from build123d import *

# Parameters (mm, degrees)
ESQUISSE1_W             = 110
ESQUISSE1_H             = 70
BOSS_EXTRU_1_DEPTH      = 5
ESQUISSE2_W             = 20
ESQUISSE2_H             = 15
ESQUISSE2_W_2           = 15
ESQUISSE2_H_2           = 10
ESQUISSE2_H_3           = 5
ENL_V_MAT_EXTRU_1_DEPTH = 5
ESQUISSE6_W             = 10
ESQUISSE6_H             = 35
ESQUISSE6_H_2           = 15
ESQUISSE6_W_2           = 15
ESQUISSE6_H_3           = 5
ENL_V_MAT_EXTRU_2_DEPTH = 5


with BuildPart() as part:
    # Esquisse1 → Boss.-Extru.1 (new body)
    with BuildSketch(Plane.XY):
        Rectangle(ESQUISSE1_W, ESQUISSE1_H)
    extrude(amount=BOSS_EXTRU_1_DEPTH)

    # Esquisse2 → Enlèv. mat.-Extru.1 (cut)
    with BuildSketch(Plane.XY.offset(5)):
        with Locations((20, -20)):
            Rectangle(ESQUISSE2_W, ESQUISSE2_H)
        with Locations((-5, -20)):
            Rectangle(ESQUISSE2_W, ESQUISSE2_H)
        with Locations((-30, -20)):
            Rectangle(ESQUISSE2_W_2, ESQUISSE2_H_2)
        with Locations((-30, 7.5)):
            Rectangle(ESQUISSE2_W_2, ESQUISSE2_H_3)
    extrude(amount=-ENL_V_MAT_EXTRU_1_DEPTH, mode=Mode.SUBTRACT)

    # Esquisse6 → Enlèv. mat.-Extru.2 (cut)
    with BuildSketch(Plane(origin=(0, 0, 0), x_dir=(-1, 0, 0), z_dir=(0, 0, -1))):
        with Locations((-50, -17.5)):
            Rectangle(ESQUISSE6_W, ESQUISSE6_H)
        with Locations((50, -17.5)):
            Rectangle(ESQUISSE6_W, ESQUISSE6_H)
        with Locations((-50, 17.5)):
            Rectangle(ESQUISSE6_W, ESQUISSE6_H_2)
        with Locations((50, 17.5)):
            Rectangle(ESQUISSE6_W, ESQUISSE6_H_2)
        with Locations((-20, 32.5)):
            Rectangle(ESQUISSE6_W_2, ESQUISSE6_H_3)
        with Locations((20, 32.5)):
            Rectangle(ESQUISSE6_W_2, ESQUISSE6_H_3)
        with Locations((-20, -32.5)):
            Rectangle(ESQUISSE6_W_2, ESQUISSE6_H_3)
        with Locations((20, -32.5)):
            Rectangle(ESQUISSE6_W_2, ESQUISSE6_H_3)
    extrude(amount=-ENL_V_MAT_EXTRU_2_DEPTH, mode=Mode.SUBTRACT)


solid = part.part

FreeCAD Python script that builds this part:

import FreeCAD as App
import Part
import Sketcher

V = App.Vector

doc = App.newDocument("Part")
params = doc.addObject("Spreadsheet::Sheet", "Params")
for row, (alias, value) in enumerate([
    ("sketch1_width", "110 mm"),
    ("sketch1_height", "70 mm"),
    ("pad1_length", "5 mm"),
    ("sketch2_width", "20 mm"),
    ("sketch2_width2", "15 mm"),
    ("sketch2_height", "10 mm"),
    ("sketch2_height2", "5 mm"),
    ("pocket1_length", "5 mm"),
    ("sketch3_width", "10 mm"),
    ("sketch3_width2", "15 mm"),
    ("sketch3_height", "35 mm"),
    ("sketch3_height2", "5 mm"),
    ("pocket2_length", "5 mm"),
], start=1):
    params.set(f"A{row}", alias)
    params.set(f"B{row}", "=" + value)
    params.setAlias(f"B{row}", alias)

body = doc.addObject("PartDesign::Body", "Body")

sketch1 = body.newObject("Sketcher::SketchObject", "Sketch")
sketch1.AttachmentSupport = (doc.getObject("XY_Plane"), [""])
sketch1.MapMode = "FlatFace"
sketch1.addGeometry(Part.LineSegment(V(-55, 35, 0), V(-55, -35, 0)), False)
sketch1.addGeometry(Part.LineSegment(V(-55, -35, 0), V(55, -35, 0)), False)
sketch1.addGeometry(Part.LineSegment(V(55, -35, 0), V(55, 35, 0)), False)
sketch1.addGeometry(Part.LineSegment(V(55, 35, 0), V(-55, 35, 0)), False)
sketch1.addConstraint(Sketcher.Constraint("Coincident", 0, 2, 1, 1))
sketch1.addConstraint(Sketcher.Constraint("Coincident", 1, 2, 2, 1))
sketch1.addConstraint(Sketcher.Constraint("Coincident", 2, 2, 3, 1))
sketch1.addConstraint(Sketcher.Constraint("Coincident", 3, 2, 0, 1))
sketch1.addConstraint(Sketcher.Constraint("Vertical", 0))
sketch1.addConstraint(Sketcher.Constraint("Horizontal", 1))
sketch1.addConstraint(Sketcher.Constraint("Vertical", 2))
sketch1.addConstraint(Sketcher.Constraint("Horizontal", 3))
sketch1.addConstraint(Sketcher.Constraint("Symmetric", 0, 2, 2, 2, -1, 1))
sketch1.addConstraint(Sketcher.Constraint("DistanceX", 1, 1, 1, 2, 110.0))
sketch1.addConstraint(Sketcher.Constraint("DistanceY", 0, 2, 0, 1, 70.0))
sketch1.setExpression("Constraints[9]", "Params.sketch1_width")
sketch1.setExpression("Constraints[10]", "Params.sketch1_height")
pad1 = body.newObject("PartDesign::Pad", "Pad")
pad1.Profile = sketch1
pad1.setExpression("Length", "Params.pad1_length")

sketch2 = body.newObject("Sketcher::SketchObject", "Sketch001")
sketch2.AttachmentSupport = (doc.getObject("XY_Plane"), [""])
sketch2.MapMode = "FlatFace"
sketch2.AttachmentOffset = App.Placement(V(0, 0, 5), App.Rotation())
sketch2.addGeometry(Part.LineSegment(V(10, -12.5, 0), V(10, -27.5, 0)), False)
sketch2.addGeometry(Part.LineSegment(V(10, -27.5, 0), V(30, -27.5, 0)), False)
sketch2.addGeometry(Part.LineSegment(V(30, -27.5, 0), V(30, -12.5, 0)), False)
sketch2.addGeometry(Part.LineSegment(V(30, -12.5, 0), V(10, -12.5, 0)), False)
sketch2.addGeometry(Part.LineSegment(V(-15, -12.5, 0), V(-15, -27.5, 0)), False)
sketch2.addGeometry(Part.LineSegment(V(-15, -27.5, 0), V(5, -27.5, 0)), False)
sketch2.addGeometry(Part.LineSegment(V(5, -27.5, 0), V(5, -12.5, 0)), False)
sketch2.addGeometry(Part.LineSegment(V(5, -12.5, 0), V(-15, -12.5, 0)), False)
sketch2.addGeometry(Part.LineSegment(V(-37.5, -15, 0), V(-37.5, -25, 0)), False)
sketch2.addGeometry(Part.LineSegment(V(-37.5, -25, 0), V(-22.5, -25, 0)), False)
sketch2.addGeometry(Part.LineSegment(V(-22.5, -25, 0), V(-22.5, -15, 0)), False)
sketch2.addGeometry(Part.LineSegment(V(-22.5, -15, 0), V(-37.5, -15, 0)), False)
sketch2.addGeometry(Part.LineSegment(V(-37.5, 10, 0), V(-37.5, 5, 0)), False)
sketch2.addGeometry(Part.LineSegment(V(-37.5, 5, 0), V(-22.5, 5, 0)), False)
sketch2.addGeometry(Part.LineSegment(V(-22.5, 5, 0), V(-22.5, 10, 0)), False)
sketch2.addGeometry(Part.LineSegment(V(-22.5, 10, 0), V(-37.5, 10, 0)), False)
sketch2.addConstraint(Sketcher.Constraint("Coincident", 0, 2, 1, 1))
sketch2.addConstraint(Sketcher.Constraint("Coincident", 1, 2, 2, 1))
sketch2.addConstraint(Sketcher.Constraint("Coincident", 2, 2, 3, 1))
sketch2.addConstraint(Sketcher.Constraint("Coincident", 3, 2, 0, 1))
sketch2.addConstraint(Sketcher.Constraint("Coincident", 4, 2, 5, 1))
sketch2.addConstraint(Sketcher.Constraint("Coincident", 5, 2, 6, 1))
sketch2.addConstraint(Sketcher.Constraint("Coincident", 6, 2, 7, 1))
sketch2.addConstraint(Sketcher.Constraint("Coincident", 7, 2, 4, 1))
sketch2.addConstraint(Sketcher.Constraint("Coincident", 8, 2, 9, 1))
sketch2.addConstraint(Sketcher.Constraint("Coincident", 9, 2, 10, 1))
sketch2.addConstraint(Sketcher.Constraint("Coincident", 10, 2, 11, 1))
sketch2.addConstraint(Sketcher.Constraint("Coincident", 11, 2, 8, 1))
sketch2.addConstraint(Sketcher.Constraint("Coincident", 12, 2, 13, 1))
sketch2.addConstraint(Sketcher.Constraint("Coincident", 13, 2, 14, 1))
sketch2.addConstraint(Sketcher.Constraint("Coincident", 14, 2, 15, 1))
sketch2.addConstraint(Sketcher.Constraint("Coincident", 15, 2, 12, 1))
sketch2.addConstraint(Sketcher.Constraint("Vertical", 0))
sketch2.addConstraint(Sketcher.Constraint("Horizontal", 1))
sketch2.addConstraint(Sketcher.Constraint("Vertical", 2))
sketch2.addConstraint(Sketcher.Constraint("Horizontal", 3))
sketch2.addConstraint(Sketcher.Constraint("Vertical", 4))
sketch2.addConstraint(Sketcher.Constraint("Horizontal", 5))
sketch2.addConstraint(Sketcher.Constraint("Vertical", 6))
sketch2.addConstraint(Sketcher.Constraint("Horizontal", 7))
sketch2.addConstraint(Sketcher.Constraint("Vertical", 8))
sketch2.addConstraint(Sketcher.Constraint("Horizontal", 9))
sketch2.addConstraint(Sketcher.Constraint("Vertical", 10))
sketch2.addConstraint(Sketcher.Constraint("Horizontal", 11))
sketch2.addConstraint(Sketcher.Constraint("Vertical", 12))
sketch2.addConstraint(Sketcher.Constraint("Horizontal", 13))
sketch2.addConstraint(Sketcher.Constraint("Vertical", 14))
sketch2.addConstraint(Sketcher.Constraint("Horizontal", 15))
sketch2.addConstraint(Sketcher.Constraint("Horizontal", 1, 2, 4, 2))
sketch2.addConstraint(Sketcher.Constraint("Horizontal", 3, 2, 6, 2))
sketch2.addConstraint(Sketcher.Constraint("Vertical", 11, 2, 12, 2))
sketch2.addConstraint(Sketcher.Constraint("Vertical", 10, 2, 13, 2))
sketch2.addConstraint(Sketcher.Constraint("Equal", 3, 5))
sketch2.addConstraint(Sketcher.Constraint("Equal", 15, 0))
sketch2.addConstraint(Sketcher.Constraint("DistanceX", 1, 1, 1, 2, 20.0))
sketch2.addConstraint(Sketcher.Constraint("DistanceX", 9, 1, 9, 2, 15.0))
sketch2.addConstraint(Sketcher.Constraint("DistanceY", 8, 2, 8, 1, 10.0))
sketch2.addConstraint(Sketcher.Constraint("DistanceY", 12, 2, 12, 1, 5.0))
sketch2.addConstraint(Sketcher.Constraint("DistanceX", -1, 1, 0, 2, 10.0))
sketch2.addConstraint(Sketcher.Constraint("DistanceX", 4, 2, -1, 1, 15.0))
sketch2.addConstraint(Sketcher.Constraint("DistanceY", 8, 2, -1, 1, 25.0))
sketch2.addConstraint(Sketcher.Constraint("DistanceY", -1, 1, 12, 2, 5.0))
sketch2.addConstraint(Sketcher.Constraint("DistanceY", 0, 2, -1, 1, 27.5))
sketch2.addConstraint(Sketcher.Constraint("DistanceX", 8, 2, -1, 1, 37.5))
sketch2.setExpression("Constraints[38]", "Params.sketch2_width")
sketch2.setExpression("Constraints[39]", "Params.sketch2_width2")
sketch2.setExpression("Constraints[40]", "Params.sketch2_height")
sketch2.setExpression("Constraints[41]", "Params.sketch2_height2")
pocket1 = body.newObject("PartDesign::Pocket", "Pocket")
pocket1.Profile = sketch2
pocket1.setExpression("Length", "Params.pocket1_length")

sketch3 = body.newObject("Sketcher::SketchObject", "Sketch002")
sketch3.AttachmentSupport = (doc.getObject("XY_Plane"), [""])
sketch3.MapMode = "FlatFace"
sketch3.addGeometry(Part.LineSegment(V(55, 0, 0), V(55, -35, 0)), False)
sketch3.addGeometry(Part.LineSegment(V(55, -35, 0), V(45, -35, 0)), False)
sketch3.addGeometry(Part.LineSegment(V(45, -35, 0), V(45, 0, 0)), False)
sketch3.addGeometry(Part.LineSegment(V(45, 0, 0), V(55, 0, 0)), False)
sketch3.addGeometry(Part.LineSegment(V(-45, 0, 0), V(-45, -35, 0)), False)
sketch3.addGeometry(Part.LineSegment(V(-45, -35, 0), V(-55, -35, 0)), False)
sketch3.addGeometry(Part.LineSegment(V(-55, -35, 0), V(-55, 0, 0)), False)
sketch3.addGeometry(Part.LineSegment(V(-55, 0, 0), V(-45, 0, 0)), False)
sketch3.addGeometry(Part.LineSegment(V(55, 25, 0), V(55, 10, 0)), False)
sketch3.addGeometry(Part.LineSegment(V(55, 10, 0), V(45, 10, 0)), False)
sketch3.addGeometry(Part.LineSegment(V(45, 10, 0), V(45, 25, 0)), False)
sketch3.addGeometry(Part.LineSegment(V(45, 25, 0), V(55, 25, 0)), False)
sketch3.addGeometry(Part.LineSegment(V(-45, 25, 0), V(-45, 10, 0)), False)
sketch3.addGeometry(Part.LineSegment(V(-45, 10, 0), V(-55, 10, 0)), False)
sketch3.addGeometry(Part.LineSegment(V(-55, 10, 0), V(-55, 25, 0)), False)
sketch3.addGeometry(Part.LineSegment(V(-55, 25, 0), V(-45, 25, 0)), False)
sketch3.addGeometry(Part.LineSegment(V(27.5, 35, 0), V(27.5, 30, 0)), False)
sketch3.addGeometry(Part.LineSegment(V(27.5, 30, 0), V(12.5, 30, 0)), False)
sketch3.addGeometry(Part.LineSegment(V(12.5, 30, 0), V(12.5, 35, 0)), False)
sketch3.addGeometry(Part.LineSegment(V(12.5, 35, 0), V(27.5, 35, 0)), False)
sketch3.addGeometry(Part.LineSegment(V(-12.5, 35, 0), V(-12.5, 30, 0)), False)
sketch3.addGeometry(Part.LineSegment(V(-12.5, 30, 0), V(-27.5, 30, 0)), False)
sketch3.addGeometry(Part.LineSegment(V(-27.5, 30, 0), V(-27.5, 35, 0)), False)
sketch3.addGeometry(Part.LineSegment(V(-27.5, 35, 0), V(-12.5, 35, 0)), False)
sketch3.addGeometry(Part.LineSegment(V(27.5, -30, 0), V(27.5, -35, 0)), False)
sketch3.addGeometry(Part.LineSegment(V(27.5, -35, 0), V(12.5, -35, 0)), False)
sketch3.addGeometry(Part.LineSegment(V(12.5, -35, 0), V(12.5, -30, 0)), False)
sketch3.addGeometry(Part.LineSegment(V(12.5, -30, 0), V(27.5, -30, 0)), False)
sketch3.addGeometry(Part.LineSegment(V(-12.5, -30, 0), V(-12.5, -35, 0)), False)
sketch3.addGeometry(Part.LineSegment(V(-12.5, -35, 0), V(-27.5, -35, 0)), False)
sketch3.addGeometry(Part.LineSegment(V(-27.5, -35, 0), V(-27.5, -30, 0)), False)
sketch3.addGeometry(Part.LineSegment(V(-27.5, -30, 0), V(-12.5, -30, 0)), False)
sketch3.addConstraint(Sketcher.Constraint("Coincident", 0, 2, 1, 1))
sketch3.addConstraint(Sketcher.Constraint("Coincident", 1, 2, 2, 1))
sketch3.addConstraint(Sketcher.Constraint("Coincident", 2, 2, 3, 1))
sketch3.addConstraint(Sketcher.Constraint("Coincident", 3, 2, 0, 1))
sketch3.addConstraint(Sketcher.Constraint("Coincident", 4, 2, 5, 1))
sketch3.addConstraint(Sketcher.Constraint("Coincident", 5, 2, 6, 1))
sketch3.addConstraint(Sketcher.Constraint("Coincident", 6, 2, 7, 1))
sketch3.addConstraint(Sketcher.Constraint("Coincident", 7, 2, 4, 1))
sketch3.addConstraint(Sketcher.Constraint("Coincident", 8, 2, 9, 1))
sketch3.addConstraint(Sketcher.Constraint("Coincident", 9, 2, 10, 1))
sketch3.addConstraint(Sketcher.Constraint("Coincident", 10, 2, 11, 1))
sketch3.addConstraint(Sketcher.Constraint("Coincident", 11, 2, 8, 1))
sketch3.addConstraint(Sketcher.Constraint("Coincident", 12, 2, 13, 1))
sketch3.addConstraint(Sketcher.Constraint("Coincident", 13, 2, 14, 1))
sketch3.addConstraint(Sketcher.Constraint("Coincident", 14, 2, 15, 1))
sketch3.addConstraint(Sketcher.Constraint("Coincident", 15, 2, 12, 1))
sketch3.addConstraint(Sketcher.Constraint("Coincident", 16, 2, 17, 1))
sketch3.addConstraint(Sketcher.Constraint("Coincident", 17, 2, 18, 1))
sketch3.addConstraint(Sketcher.Constraint("Coincident", 18, 2, 19, 1))
sketch3.addConstraint(Sketcher.Constraint("Coincident", 19, 2, 16, 1))
sketch3.addConstraint(Sketcher.Constraint("Coincident", 20, 2, 21, 1))
sketch3.addConstraint(Sketcher.Constraint("Coincident", 21, 2, 22, 1))
sketch3.addConstraint(Sketcher.Constraint("Coincident", 22, 2, 23, 1))
sketch3.addConstraint(Sketcher.Constraint("Coincident", 23, 2, 20, 1))
sketch3.addConstraint(Sketcher.Constraint("Coincident", 24, 2, 25, 1))
sketch3.addConstraint(Sketcher.Constraint("Coincident", 25, 2, 26, 1))
sketch3.addConstraint(Sketcher.Constraint("Coincident", 26, 2, 27, 1))
sketch3.addConstraint(Sketcher.Constraint("Coincident", 27, 2, 24, 1))
sketch3.addConstraint(Sketcher.Constraint("Coincident", 28, 2, 29, 1))
sketch3.addConstraint(Sketcher.Constraint("Coincident", 29, 2, 30, 1))
sketch3.addConstraint(Sketcher.Constraint("Coincident", 30, 2, 31, 1))
sketch3.addConstraint(Sketcher.Constraint("Coincident", 31, 2, 28, 1))
sketch3.addConstraint(Sketcher.Constraint("Vertical", 0))
sketch3.addConstraint(Sketcher.Constraint("Horizontal", 1))
sketch3.addConstraint(Sketcher.Constraint("Vertical", 2))
sketch3.addConstraint(Sketcher.Constraint("Horizontal", 3))
sketch3.addConstraint(Sketcher.Constraint("Vertical", 4))
sketch3.addConstraint(Sketcher.Constraint("Horizontal", 5))
sketch3.addConstraint(Sketcher.Constraint("Vertical", 6))
sketch3.addConstraint(Sketcher.Constraint("Horizontal", 7))
sketch3.addConstraint(Sketcher.Constraint("Vertical", 8))
sketch3.addConstraint(Sketcher.Constraint("Horizontal", 9))
sketch3.addConstraint(Sketcher.Constraint("Vertical", 10))
sketch3.addConstraint(Sketcher.Constraint("Horizontal", 11))
sketch3.addConstraint(Sketcher.Constraint("Vertical", 12))
sketch3.addConstraint(Sketcher.Constraint("Horizontal", 13))
sketch3.addConstraint(Sketcher.Constraint("Vertical", 14))
sketch3.addConstraint(Sketcher.Constraint("Horizontal", 15))
sketch3.addConstraint(Sketcher.Constraint("Vertical", 16))
sketch3.addConstraint(Sketcher.Constraint("Horizontal", 17))
sketch3.addConstraint(Sketcher.Constraint("Vertical", 18))
sketch3.addConstraint(Sketcher.Constraint("Horizontal", 19))
sketch3.addConstraint(Sketcher.Constraint("Vertical", 20))
sketch3.addConstraint(Sketcher.Constraint("Horizontal", 21))
sketch3.addConstraint(Sketcher.Constraint("Vertical", 22))
sketch3.addConstraint(Sketcher.Constraint("Horizontal", 23))
sketch3.addConstraint(Sketcher.Constraint("Vertical", 24))
sketch3.addConstraint(Sketcher.Constraint("Horizontal", 25))
sketch3.addConstraint(Sketcher.Constraint("Vertical", 26))
sketch3.addConstraint(Sketcher.Constraint("Horizontal", 27))
sketch3.addConstraint(Sketcher.Constraint("Vertical", 28))
sketch3.addConstraint(Sketcher.Constraint("Horizontal", 29))
sketch3.addConstraint(Sketcher.Constraint("Vertical", 30))
sketch3.addConstraint(Sketcher.Constraint("Horizontal", 31))
sketch3.addConstraint(Sketcher.Constraint("Symmetric", 3, 2, 6, 2, -1, 1))
sketch3.addConstraint(Sketcher.Constraint("Symmetric", 22, 2, 24, 2, -1, 1))
sketch3.addConstraint(Sketcher.Constraint("Symmetric", 20, 2, 26, 2, -1, 1))
sketch3.addConstraint(Sketcher.Constraint("Symmetric", 18, 2, 28, 2, -1, 1))
sketch3.addConstraint(Sketcher.Constraint("Symmetric", 16, 2, 30, 2, -1, 1))
sketch3.addConstraint(Sketcher.Constraint("Symmetric", 1, 2, 4, 2, -2))
sketch3.addConstraint(Sketcher.Constraint("Symmetric", 9, 2, 12, 2, -2))
sketch3.addConstraint(Sketcher.Constraint("Symmetric", 11, 2, 14, 2, -2))
sketch3.addConstraint(Sketcher.Constraint("Symmetric", 17, 2, 20, 2, -2))
sketch3.addConstraint(Sketcher.Constraint("Symmetric", 19, 2, 22, 2, -2))
sketch3.addConstraint(Sketcher.Constraint("PointOnObject", 2, 2, -1))
sketch3.addConstraint(Sketcher.Constraint("Horizontal", 5, 2, 24, 2))
sketch3.addConstraint(Sketcher.Constraint("Vertical", 3, 2, 8, 2))
sketch3.addConstraint(Sketcher.Constraint("Vertical", 2, 2, 9, 2))
sketch3.addConstraint(Sketcher.Constraint("Equal", 31, 8))
sketch3.addConstraint(Sketcher.Constraint("DistanceX", 1, 2, 1, 1, 10.0))
sketch3.addConstraint(Sketcher.Constraint("DistanceX", 17, 2, 17, 1, 15.0))
sketch3.addConstraint(Sketcher.Constraint("DistanceY", 0, 2, 0, 1, 35.0))
sketch3.addConstraint(Sketcher.Constraint("DistanceY", 16, 2, 16, 1, 5.0))
sketch3.addConstraint(Sketcher.Constraint("DistanceX", -1, 1, 0, 2, 55.0))
sketch3.addConstraint(Sketcher.Constraint("DistanceY", -1, 1, 8, 2, 10.0))
sketch3.addConstraint(Sketcher.Constraint("DistanceX", 20, 2, 17, 2, 25.0))
sketch3.setExpression("Constraints[79]", "Params.sketch3_width")
sketch3.setExpression("Constraints[80]", "Params.sketch3_width2")
sketch3.setExpression("Constraints[81]", "Params.sketch3_height")
sketch3.setExpression("Constraints[82]", "Params.sketch3_height2")
pocket2 = body.newObject("PartDesign::Pocket", "Pocket001")
pocket2.Profile = sketch3
pocket2.setExpression("Length", "Params.pocket2_length")
pocket2.Reversed = True

doc.recompute()
